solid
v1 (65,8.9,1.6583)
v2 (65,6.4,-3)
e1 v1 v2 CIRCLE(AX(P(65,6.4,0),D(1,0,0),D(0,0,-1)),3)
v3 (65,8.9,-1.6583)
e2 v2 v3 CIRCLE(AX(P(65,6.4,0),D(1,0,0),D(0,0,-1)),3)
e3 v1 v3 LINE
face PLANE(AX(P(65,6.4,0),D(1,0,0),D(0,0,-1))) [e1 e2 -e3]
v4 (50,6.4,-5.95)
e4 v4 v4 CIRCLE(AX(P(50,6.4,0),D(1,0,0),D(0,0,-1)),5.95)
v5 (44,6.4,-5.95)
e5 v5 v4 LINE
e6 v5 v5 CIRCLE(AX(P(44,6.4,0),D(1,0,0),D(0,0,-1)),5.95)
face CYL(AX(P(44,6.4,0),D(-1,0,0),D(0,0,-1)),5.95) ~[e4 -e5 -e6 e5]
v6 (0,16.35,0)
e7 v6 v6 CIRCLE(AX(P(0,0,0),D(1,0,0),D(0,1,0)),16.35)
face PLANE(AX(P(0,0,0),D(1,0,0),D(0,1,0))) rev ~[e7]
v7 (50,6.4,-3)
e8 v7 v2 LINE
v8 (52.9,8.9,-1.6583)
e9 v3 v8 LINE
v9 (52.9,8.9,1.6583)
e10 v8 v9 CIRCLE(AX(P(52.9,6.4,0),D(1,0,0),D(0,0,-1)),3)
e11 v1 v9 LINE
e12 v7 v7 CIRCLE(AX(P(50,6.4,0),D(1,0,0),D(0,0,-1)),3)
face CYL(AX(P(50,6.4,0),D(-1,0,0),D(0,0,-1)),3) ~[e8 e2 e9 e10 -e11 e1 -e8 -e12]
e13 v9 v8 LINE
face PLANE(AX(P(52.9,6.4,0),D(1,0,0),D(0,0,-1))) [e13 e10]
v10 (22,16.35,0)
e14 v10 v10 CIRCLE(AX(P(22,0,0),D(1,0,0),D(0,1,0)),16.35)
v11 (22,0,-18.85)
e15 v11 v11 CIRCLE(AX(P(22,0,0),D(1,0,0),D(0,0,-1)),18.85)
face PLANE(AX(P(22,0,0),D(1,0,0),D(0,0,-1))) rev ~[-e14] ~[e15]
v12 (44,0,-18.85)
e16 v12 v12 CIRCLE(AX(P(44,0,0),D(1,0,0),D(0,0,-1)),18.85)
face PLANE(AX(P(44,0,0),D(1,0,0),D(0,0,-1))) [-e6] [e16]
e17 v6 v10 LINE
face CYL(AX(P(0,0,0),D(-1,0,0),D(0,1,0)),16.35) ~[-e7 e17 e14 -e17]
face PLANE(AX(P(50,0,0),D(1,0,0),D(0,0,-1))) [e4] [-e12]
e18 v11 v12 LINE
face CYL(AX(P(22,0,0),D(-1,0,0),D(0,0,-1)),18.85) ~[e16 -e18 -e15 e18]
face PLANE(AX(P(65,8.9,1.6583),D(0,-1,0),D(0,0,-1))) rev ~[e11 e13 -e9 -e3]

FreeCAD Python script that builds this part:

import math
import FreeCAD as App
import Part
import Sketcher

V = App.Vector
Q = App.Units.Quantity

doc = App.newDocument("Part")
body = doc.addObject("PartDesign::Body", "Body")

sketch1 = doc.addObject("Sketcher::SketchObject", "Sketch")
body.addObject(sketch1)
sketch1.AttachmentSupport = (doc.YZ_Plane, [""])
sketch1.MapMode = "FlatFace"
sketch1.addGeometry(Part.Circle(V(0, 0, 0), V(0, 0, 1), 16.35), False)
sketch1.addConstraint([
    Sketcher.Constraint("Coincident", 0, 3, -1, 1),
    Sketcher.Constraint("Diameter", 0, Q("32.7 mm")),
])
pad1 = doc.addObject("PartDesign::Pad", "Pad")
body.addObject(pad1)
pad1.Profile = sketch1
pad1.Length = 22

sketch2 = doc.addObject("Sketcher::SketchObject", "Sketch001")
body.addObject(sketch2)
sketch2.AttachmentSupport = (doc.YZ_Plane, [""])
sketch2.MapMode = "FlatFace"
sketch2.AttachmentOffset = App.Placement(V(0, 0, 22), App.Rotation())
sketch2.addGeometry(Part.Circle(V(0, 0, 0), V(0, 0, 1), 18.85), False)
sketch2.addConstraint([
    Sketcher.Constraint("Coincident", 0, 3, -1, 1),
    Sketcher.Constraint("Diameter", 0, Q("37.7 mm")),
])
pad2 = doc.addObject("PartDesign::Pad", "Pad001")
body.addObject(pad2)
pad2.Profile = sketch2
pad2.Length = 22

sketch3 = doc.addObject("Sketcher::SketchObject", "Sketch002")
body.addObject(sketch3)
sketch3.AttachmentSupport = (doc.YZ_Plane, [""])
sketch3.MapMode = "FlatFace"
sketch3.AttachmentOffset = App.Placement(V(0, 0, 44), App.Rotation())
sketch3.addGeometry(Part.Circle(V(6.4, 0, 0), V(0, 0, 1), 5.95), False)
sketch3.addConstraint([
    Sketcher.Constraint("PointOnObject", 0, 3, -1),
    Sketcher.Constraint("Diameter", 0, Q("11.9 mm")),
    Sketcher.Constraint("DistanceX", -1, 1, 0, 3, Q("6.4 mm")),
])
pad3 = doc.addObject("PartDesign::Pad", "Pad002")
body.addObject(pad3)
pad3.Profile = sketch3
pad3.Length = 6

sketch4 = doc.addObject("Sketcher::SketchObject", "Sketch003")
body.addObject(sketch4)
sketch4.AttachmentSupport = (doc.YZ_Plane, [""])
sketch4.MapMode = "FlatFace"
sketch4.AttachmentOffset = App.Placement(V(0, 0, 50), App.Rotation())
sketch4.addGeometry(Part.Circle(V(6.4, 0, 0), V(0, 0, 1), 3), False)
sketch4.addConstraint([
    Sketcher.Constraint("PointOnObject", 0, 3, -1),
    Sketcher.Constraint("Diameter", 0, Q("6 mm")),
    Sketcher.Constraint("DistanceX", -1, 1, 0, 3, Q("6.4 mm")),
])
pad4 = doc.addObject("PartDesign::Pad", "Pad003")
body.addObject(pad4)
pad4.Profile = sketch4
pad4.Length = 15

sketch5 = doc.addObject("Sketcher::SketchObject", "Sketch004")
body.addObject(sketch5)
sketch5.AttachmentSupport = (doc.YZ_Plane, [""])
sketch5.MapMode = "FlatFace"
sketch5.AttachmentOffset = App.Placement(V(0, 0, 65), App.Rotation())
sketch5.addGeometry([
    Part.LineSegment(V(8.9, 1.6583, 0), V(8.9, -1.6583, 0)),
    Part.ArcOfCircle(Part.Circle(V(6.4, 0, 0), V(0, 0, 1), 3), math.radians(-33.557112), math.radians(33.557112)),
], False)
sketch5.addConstraint([
    Sketcher.Constraint("Coincident", 0, 1, 1, 2),
    Sketcher.Constraint("Coincident", 1, 1, 0, 2),
    Sketcher.Constraint("Vertical", 0),
    Sketcher.Constraint("PointOnObject", 1, 3, -1),
    Sketcher.Constraint("Radius", 1, Q("3 mm")),
    Sketcher.Constraint("DistanceX", 1, 3, 0, 1, Q("2.5 mm")),
    Sketcher.Constraint("DistanceX", -1, 1, 1, 3, Q("6.4 mm")),
])
pocket1 = doc.addObject("PartDesign::Pocket", "Pocket")
body.addObject(pocket1)
pocket1.Profile = sketch5
pocket1.Length = 12.1

doc.recompute()
